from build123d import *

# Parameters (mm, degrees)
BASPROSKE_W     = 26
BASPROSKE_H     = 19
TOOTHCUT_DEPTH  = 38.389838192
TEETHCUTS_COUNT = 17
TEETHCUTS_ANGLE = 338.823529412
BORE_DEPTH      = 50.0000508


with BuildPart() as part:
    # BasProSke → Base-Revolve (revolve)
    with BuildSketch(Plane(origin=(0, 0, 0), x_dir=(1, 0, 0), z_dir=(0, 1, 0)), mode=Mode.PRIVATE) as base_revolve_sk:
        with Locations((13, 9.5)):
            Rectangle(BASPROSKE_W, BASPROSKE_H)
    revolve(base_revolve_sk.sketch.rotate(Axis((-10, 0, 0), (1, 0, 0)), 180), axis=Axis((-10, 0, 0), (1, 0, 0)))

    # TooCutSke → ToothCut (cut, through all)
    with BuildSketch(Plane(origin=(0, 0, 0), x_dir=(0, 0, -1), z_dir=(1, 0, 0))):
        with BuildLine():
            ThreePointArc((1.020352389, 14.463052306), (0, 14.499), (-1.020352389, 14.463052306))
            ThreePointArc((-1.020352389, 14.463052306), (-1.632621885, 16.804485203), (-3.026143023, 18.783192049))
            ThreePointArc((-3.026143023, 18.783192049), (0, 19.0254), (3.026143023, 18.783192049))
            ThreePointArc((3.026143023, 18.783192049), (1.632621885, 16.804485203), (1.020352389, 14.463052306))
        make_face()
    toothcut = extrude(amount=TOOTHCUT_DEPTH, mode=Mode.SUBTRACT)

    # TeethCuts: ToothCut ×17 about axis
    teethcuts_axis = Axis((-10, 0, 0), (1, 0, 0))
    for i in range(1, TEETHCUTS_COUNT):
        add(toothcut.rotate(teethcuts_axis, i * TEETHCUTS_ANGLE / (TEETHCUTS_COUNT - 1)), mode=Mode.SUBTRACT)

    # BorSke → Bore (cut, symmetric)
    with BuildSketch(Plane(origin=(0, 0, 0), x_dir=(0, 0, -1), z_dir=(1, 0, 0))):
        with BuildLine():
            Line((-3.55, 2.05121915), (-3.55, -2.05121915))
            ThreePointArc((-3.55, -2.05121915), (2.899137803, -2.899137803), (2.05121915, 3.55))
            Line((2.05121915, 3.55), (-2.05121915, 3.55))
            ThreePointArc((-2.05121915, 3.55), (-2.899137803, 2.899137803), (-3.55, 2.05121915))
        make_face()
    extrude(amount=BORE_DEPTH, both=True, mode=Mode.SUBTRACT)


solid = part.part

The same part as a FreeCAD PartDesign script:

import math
import FreeCAD as App
import Part
import Sketcher
from FreeCAD import Vector
Q = App.Units.Quantity

doc = App.newDocument("Part")
body = doc.addObject("PartDesign::Body", "Body")

# Sketch on XZ plane
sketch1 = body.newObject("Sketcher::SketchObject", "Sketch")
sketch1.AttachmentSupport = (doc.getObject("XZ_Plane"), [""])
sketch1.MapMode = "FlatFace"
sketch1.addGeometry([
    Part.LineSegment(Vector(0, -19, 0), Vector(0, 0, 0)),
    Part.LineSegment(Vector(0, 0, 0), Vector(26, 0, 0)),
    Part.LineSegment(Vector(26, 0, 0), Vector(26, -19, 0)),
    Part.LineSegment(Vector(26, -19, 0), Vector(0, -19, 0)),
], False)
sketch1.addConstraint([
    Sketcher.Constraint("Coincident", 0, 2, 1, 1),
    Sketcher.Constraint("Coincident", 1, 2, 2, 1),
    Sketcher.Constraint("Coincident", 2, 2, 3, 1),
    Sketcher.Constraint("Coincident", 3, 2, 0, 1),
    Sketcher.Constraint("Vertical", 0),
    Sketcher.Constraint("Horizontal", 1),
    Sketcher.Constraint("Vertical", 2),
    Sketcher.Constraint("Horizontal", 3),
    Sketcher.Constraint("Coincident", 0, 2, -1, 1),
    Sketcher.Constraint("DistanceX", 1, 1, 1, 2, Q("26 mm")),
    Sketcher.Constraint("DistanceY", 0, 1, 0, 2, Q("19 mm")),
])
revolution = body.newObject("PartDesign::Revolution", "Revolution")
revolution.Profile = sketch1
revolution.ReferenceAxis = (sketch1, ["H_Axis"])
revolution.Angle = 360

# Sketch on YZ plane
sketch2 = body.newObject("Sketcher::SketchObject", "Sketch001")
sketch2.AttachmentSupport = (doc.getObject("YZ_Plane"), [""])
sketch2.MapMode = "FlatFace"
sketch2.addGeometry([
    Part.ArcOfCircle(Part.Circle(Vector(0, 0, 0), Vector(0, 0, 1), 14.499), math.radians(-4.035468), math.radians(4.035468)),
    Part.ArcOfCircle(Part.Circle(Vector(13.940915, -7.800277, 0), Vector(0, 0, 1), 6.8), math.radians(44.593999), math.radians(85.596214)),
    Part.ArcOfCircle(Part.Circle(Vector(0, 0, 0), Vector(0, 0, 1), 19.0254), math.radians(-9.152226), math.radians(9.152226)),
    Part.ArcOfCircle(Part.Circle(Vector(13.940915, 7.800277, 0), Vector(0, 0, 1), 6.8), math.radians(-85.596214), math.radians(-44.593999)),
], False)
sketch2.addConstraint([
    Sketcher.Constraint("Coincident", 0, 1, 1, 2),
    Sketcher.Constraint("Coincident", 1, 1, 2, 1),
    Sketcher.Constraint("Coincident", 2, 2, 3, 2),
    Sketcher.Constraint("Coincident", 3, 1, 0, 2),
    Sketcher.Constraint("Coincident", 0, 3, -1, 1),
    Sketcher.Constraint("Coincident", 2, 3, -1, 1),
    Sketcher.Constraint("Equal", 1, 3),
    Sketcher.Constraint("Symmetric", 1, 3, 3, 3, -1),
    Sketcher.Constraint("Radius", 1, Q("6.8 mm")),
    Sketcher.Constraint("Radius", 0, Q("14.499 mm")),
    Sketcher.Constraint("Radius", 2, Q("19.0254 mm")),
    Sketcher.Constraint("DistanceY", 0, 1, 3, 3, Q("8.820629 mm")),
    Sketcher.Constraint("DistanceX", 0, 1, 1, 1, Q("4.32014 mm")),
])
pocket1 = body.newObject("PartDesign::Pocket", "Pocket")
pocket1.Profile = sketch2
pocket1.Type = "ThroughAll"
pocket1.Reversed = True
doc.recompute()

polarpattern = body.newObject("PartDesign::PolarPattern", "PolarPattern")
polarpattern.Originals = [pocket1]
polarpattern.Axis = (doc.getObject("X_Axis"), [""])
polarpattern.Angle = 360
polarpattern.Occurrences = 17
body.Tip = polarpattern

# Sketch on YZ plane
sketch3 = body.newObject("Sketcher::SketchObject", "Sketch002")
sketch3.AttachmentSupport = (doc.getObject("YZ_Plane"), [""])
sketch3.MapMode = "FlatFace"
sketch3.addGeometry([
    Part.LineSegment(Vector(2.051219, 3.55, 0), Vector(-2.051219, 3.55, 0)),
    Part.ArcOfCircle(Part.Circle(Vector(0, 0, 0), Vector(0, 0, 1), 4.1), math.radians(120.019675), math.radians(329.980325)),
    Part.LineSegment(Vector(3.55, -2.051219, 0), Vector(3.55, 2.051219, 0)),
    Part.ArcOfCircle(Part.Circle(Vector(0, 0, 0), Vector(0, 0, 1), 4.1), math.radians(30.019675), math.radians(59.980325)),
], False)
sketch3.addConstraint([
    Sketcher.Constraint("Coincident", 0, 2, 1, 1),
    Sketcher.Constraint("Coincident", 1, 2, 2, 1),
    Sketcher.Constraint("Coincident", 2, 2, 3, 1),
    Sketcher.Constraint("Coincident", 3, 2, 0, 1),
    Sketcher.Constraint("Horizontal", 0),
    Sketcher.Constraint("Vertical", 2),
    Sketcher.Constraint("Coincident", 1, 3, -1, 1),
    Sketcher.Constraint("Coincident", 3, 3, -1, 1),
    Sketcher.Constraint("Equal", 1, 3),
    Sketcher.Constraint("Equal", 0, 2),
    Sketcher.Constraint("Radius", 1, Q("4.1 mm")),
    Sketcher.Constraint("DistanceY", -1, 1, 0, 2, Q("3.55 mm")),
])
pocket2 = body.newObject("PartDesign::Pocket", "Pocket001")
pocket2.Profile = sketch3
pocket2.Length = 100.000102
pocket2.Midplane = True

doc.recompute()
